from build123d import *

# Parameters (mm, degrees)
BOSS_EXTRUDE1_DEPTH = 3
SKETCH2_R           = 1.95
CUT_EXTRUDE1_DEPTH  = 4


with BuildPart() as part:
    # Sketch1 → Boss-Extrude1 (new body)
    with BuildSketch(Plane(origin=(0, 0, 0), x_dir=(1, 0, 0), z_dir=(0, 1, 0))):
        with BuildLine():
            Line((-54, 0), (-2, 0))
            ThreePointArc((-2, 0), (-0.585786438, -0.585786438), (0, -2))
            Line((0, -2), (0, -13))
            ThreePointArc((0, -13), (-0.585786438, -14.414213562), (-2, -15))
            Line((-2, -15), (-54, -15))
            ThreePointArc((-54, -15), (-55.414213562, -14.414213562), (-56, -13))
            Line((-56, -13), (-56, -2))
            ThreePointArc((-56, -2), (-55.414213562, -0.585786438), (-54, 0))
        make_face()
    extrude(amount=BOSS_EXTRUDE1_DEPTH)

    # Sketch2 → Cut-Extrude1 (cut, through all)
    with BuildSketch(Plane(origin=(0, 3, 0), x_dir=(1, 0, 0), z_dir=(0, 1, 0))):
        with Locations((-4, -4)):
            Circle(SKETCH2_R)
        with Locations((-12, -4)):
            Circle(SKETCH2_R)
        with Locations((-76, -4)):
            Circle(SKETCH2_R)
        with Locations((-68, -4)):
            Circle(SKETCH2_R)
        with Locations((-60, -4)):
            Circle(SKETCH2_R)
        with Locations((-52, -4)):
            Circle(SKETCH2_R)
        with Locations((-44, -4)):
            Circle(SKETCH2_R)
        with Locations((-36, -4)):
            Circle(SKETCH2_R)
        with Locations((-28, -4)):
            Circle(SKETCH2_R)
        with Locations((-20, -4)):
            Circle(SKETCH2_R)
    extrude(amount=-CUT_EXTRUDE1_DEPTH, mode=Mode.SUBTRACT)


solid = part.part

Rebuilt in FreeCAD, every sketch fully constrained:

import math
import FreeCAD as App
import Part
import Sketcher
Q = App.Units.Quantity

doc = App.newDocument("Part")
body = doc.addObject("PartDesign::Body", "Body")

sketch1 = doc.addObject("Sketcher::SketchObject", "Sketch")
body.addObject(sketch1)
sketch1.AttachmentSupport = (doc.XZ_Plane, [""])
sketch1.MapMode = "FlatFace"
sketch1.addGeometry([
    Part.LineSegment(App.Vector(-2, 0, 0), App.Vector(-54, 0, 0)),
    Part.ArcOfCircle(Part.Circle(App.Vector(-54, 2, 0), App.Vector(0, 0, 1), 2), math.radians(-180), math.radians(-90)),
    Part.LineSegment(App.Vector(-56, 2, 0), App.Vector(-56, 13, 0)),
    Part.ArcOfCircle(Part.Circle(App.Vector(-54, 13, 0), App.Vector(0, 0, 1), 2), math.radians(90), math.radians(180)),
    Part.LineSegment(App.Vector(-54, 15, 0), App.Vector(-2, 15, 0)),
    Part.ArcOfCircle(Part.Circle(App.Vector(-2, 13, 0), App.Vector(0, 0, 1), 2), math.radians(0), math.radians(90)),
    Part.LineSegment(App.Vector(0, 13, 0), App.Vector(0, 2, 0)),
    Part.ArcOfCircle(Part.Circle(App.Vector(-2, 2, 0), App.Vector(0, 0, 1), 2), math.radians(-90), math.radians(0)),
], False)
sketch1.addConstraint([
    Sketcher.Constraint("Tangent", 0, 2, 1, 2),
    Sketcher.Constraint("Tangent", 1, 1, 2, 1),
    Sketcher.Constraint("Tangent", 2, 2, 3, 2),
    Sketcher.Constraint("Tangent", 3, 1, 4, 1),
    Sketcher.Constraint("Tangent", 4, 2, 5, 2),
    Sketcher.Constraint("Tangent", 5, 1, 6, 1),
    Sketcher.Constraint("Tangent", 6, 2, 7, 2),
    Sketcher.Constraint("Tangent", 7, 1, 0, 1),
    Sketcher.Constraint("Horizontal", 0),
    Sketcher.Constraint("Vertical", 2),
    Sketcher.Constraint("Horizontal", 4),
    Sketcher.Constraint("Vertical", 6),
    Sketcher.Constraint("Equal", 1, 3),
    Sketcher.Constraint("Equal", 3, 5),
    Sketcher.Constraint("Equal", 5, 7),
    Sketcher.Constraint("PointOnObject", 0, 2, -1),
    Sketcher.Constraint("PointOnObject", 5, 1, -2),
    Sketcher.Constraint("Radius", 1, Q("2 mm")),
    Sketcher.Constraint("DistanceX", 0, 2, 0, 1, Q("52 mm")),
    Sketcher.Constraint("DistanceY", 2, 1, 2, 2, Q("11 mm")),
])
pad1 = doc.addObject("PartDesign::Pad", "Pad")
body.addObject(pad1)
pad1.Profile = sketch1
pad1.Length = 3
pad1.Reversed = True

sketch2 = doc.addObject("Sketcher::SketchObject", "Sketch001")
body.addObject(sketch2)
sketch2.AttachmentSupport = (doc.XZ_Plane, [""])
sketch2.MapMode = "FlatFace"
sketch2.AttachmentOffset = App.Placement(App.Vector(0, 0, -3), App.Rotation())
sketch2.addGeometry([
    Part.Circle(App.Vector(-4, 4, 0), App.Vector(0, 0, 1), 1.9),
    Part.Circle(App.Vector(-12, 4, 0), App.Vector(0, 0, 1), 1.9),
    Part.Circle(App.Vector(-76, 4, 0), App.Vector(0, 0, 1), 1.9),
    Part.Circle(App.Vector(-68, 4, 0), App.Vector(0, 0, 1), 1.9),
    Part.Circle(App.Vector(-60, 4, 0), App.Vector(0, 0, 1), 1.9),
    Part.Circle(App.Vector(-52, 4, 0), App.Vector(0, 0, 1), 1.9),
    Part.Circle(App.Vector(-44, 4, 0), App.Vector(0, 0, 1), 1.9),
    Part.Circle(App.Vector(-36, 4, 0), App.Vector(0, 0, 1), 1.9),
    Part.Circle(App.Vector(-28, 4, 0), App.Vector(0, 0, 1), 1.9),
    Part.Circle(App.Vector(-20, 4, 0), App.Vector(0, 0, 1), 1.9),
], False)
sketch2.addConstraint([
    Sketcher.Constraint("Equal", 0, 1),
    Sketcher.Constraint("Equal", 1, 2),
    Sketcher.Constraint("Equal", 2, 3),
    Sketcher.Constraint("Equal", 3, 4),
    Sketcher.Constraint("Equal", 4, 5),
    Sketcher.Constraint("Equal", 5, 6),
    Sketcher.Constraint("Equal", 6, 7),
    Sketcher.Constraint("Equal", 7, 8),
    Sketcher.Constraint("Equal", 8, 9),
    Sketcher.Constraint("Horizontal", 0, 3, 1, 3),
    Sketcher.Constraint("Horizontal", 1, 3, 2, 3),
    Sketcher.Constraint("Horizontal", 2, 3, 3, 3),
    Sketcher.Constraint("Horizontal", 3, 3, 4, 3),
    Sketcher.Constraint("Horizontal", 4, 3, 5, 3),
    Sketcher.Constraint("Horizontal", 5, 3, 6, 3),
    Sketcher.Constraint("Horizontal", 6, 3, 7, 3),
    Sketcher.Constraint("Horizontal", 7, 3, 8, 3),
    Sketcher.Constraint("Horizontal", 8, 3, 9, 3),
    Sketcher.Constraint("Diameter", 0, Q("3.9 mm")),
    Sketcher.Constraint("DistanceX", 0, 3, -1, 1, Q("4 mm")),
    Sketcher.Constraint("DistanceY", -1, 1, 0, 3, Q("4 mm")),
    Sketcher.Constraint("DistanceX", 1, 3, -1, 1, Q("12 mm")),
    Sketcher.Constraint("DistanceX", 2, 3, -1, 1, Q("76 mm")),
    Sketcher.Constraint("DistanceX", 3, 3, -1, 1, Q("68 mm")),
    Sketcher.Constraint("DistanceX", 4, 3, -1, 1, Q("60 mm")),
    Sketcher.Constraint("DistanceX", 5, 3, -1, 1, Q("52 mm")),
    Sketcher.Constraint("DistanceX", 6, 3, -1, 1, Q("44 mm")),
    Sketcher.Constraint("DistanceX", 7, 3, -1, 1, Q("36 mm")),
    Sketcher.Constraint("DistanceX", 8, 3, -1, 1, Q("28 mm")),
    Sketcher.Constraint("DistanceX", 9, 3, -1, 1, Q("20 mm")),
])
pocket1 = doc.addObject("PartDesign::Pocket", "Pocket")
body.addObject(pocket1)
pocket1.Profile = sketch2
pocket1.Type = "ThroughAll"
pocket1.Reversed = True

doc.recompute()
